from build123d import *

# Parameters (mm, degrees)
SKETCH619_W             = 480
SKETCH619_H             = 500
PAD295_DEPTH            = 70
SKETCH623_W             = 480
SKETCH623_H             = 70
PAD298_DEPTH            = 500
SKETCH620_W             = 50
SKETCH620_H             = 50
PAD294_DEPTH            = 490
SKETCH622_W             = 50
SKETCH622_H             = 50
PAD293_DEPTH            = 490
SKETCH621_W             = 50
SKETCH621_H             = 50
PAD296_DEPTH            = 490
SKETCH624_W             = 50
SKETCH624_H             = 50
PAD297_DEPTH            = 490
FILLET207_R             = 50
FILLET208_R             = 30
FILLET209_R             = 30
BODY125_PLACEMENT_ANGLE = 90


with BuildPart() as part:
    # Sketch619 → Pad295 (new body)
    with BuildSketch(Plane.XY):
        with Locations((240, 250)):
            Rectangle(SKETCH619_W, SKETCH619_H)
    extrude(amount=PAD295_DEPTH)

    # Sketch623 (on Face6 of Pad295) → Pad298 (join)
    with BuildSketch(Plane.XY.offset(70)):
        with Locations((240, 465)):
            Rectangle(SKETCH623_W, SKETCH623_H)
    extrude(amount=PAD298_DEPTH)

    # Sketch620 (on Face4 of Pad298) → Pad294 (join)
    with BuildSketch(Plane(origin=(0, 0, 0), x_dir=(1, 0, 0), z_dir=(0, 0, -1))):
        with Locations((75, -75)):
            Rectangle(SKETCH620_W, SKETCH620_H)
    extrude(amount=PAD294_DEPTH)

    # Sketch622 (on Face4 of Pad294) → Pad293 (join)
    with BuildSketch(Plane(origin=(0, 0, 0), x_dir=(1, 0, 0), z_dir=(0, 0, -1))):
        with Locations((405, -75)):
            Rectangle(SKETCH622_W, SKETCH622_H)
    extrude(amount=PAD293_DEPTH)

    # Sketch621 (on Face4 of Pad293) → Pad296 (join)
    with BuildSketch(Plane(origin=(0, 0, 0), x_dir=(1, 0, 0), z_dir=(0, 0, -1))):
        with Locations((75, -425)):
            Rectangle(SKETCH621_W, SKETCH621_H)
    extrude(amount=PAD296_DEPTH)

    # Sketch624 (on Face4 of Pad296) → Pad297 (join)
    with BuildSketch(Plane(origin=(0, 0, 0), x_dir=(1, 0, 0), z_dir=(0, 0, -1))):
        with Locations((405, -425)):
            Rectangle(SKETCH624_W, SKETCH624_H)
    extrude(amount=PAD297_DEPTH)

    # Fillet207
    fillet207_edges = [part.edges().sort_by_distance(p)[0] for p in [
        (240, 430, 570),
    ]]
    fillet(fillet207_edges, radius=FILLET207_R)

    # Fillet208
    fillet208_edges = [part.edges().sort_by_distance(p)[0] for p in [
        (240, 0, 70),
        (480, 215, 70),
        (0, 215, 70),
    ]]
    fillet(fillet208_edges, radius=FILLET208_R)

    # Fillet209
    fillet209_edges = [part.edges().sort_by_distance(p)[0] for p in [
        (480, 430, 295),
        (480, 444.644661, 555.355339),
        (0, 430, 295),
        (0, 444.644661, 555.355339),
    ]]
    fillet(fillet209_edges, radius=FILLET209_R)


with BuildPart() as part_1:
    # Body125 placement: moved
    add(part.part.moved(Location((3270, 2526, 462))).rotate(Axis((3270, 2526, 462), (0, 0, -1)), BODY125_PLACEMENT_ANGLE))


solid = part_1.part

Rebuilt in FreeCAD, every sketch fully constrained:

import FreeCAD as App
import Part
import Sketcher

V = App.Vector


def edges_at(feature, points):
    """Names of the edges that pass closest to the given points."""
    edges = feature.Shape.Edges
    near = lambda p: min(range(len(edges)), key=lambda i: edges[i].distToShape(Part.Vertex(*p))[0])
    return sorted({f"Edge{near(p) + 1}" for p in points})

doc = App.newDocument("Part")
params = doc.addObject("Spreadsheet::Sheet", "Params")
for row, (alias, value) in enumerate([
    ("sketch1_width", "480 mm"),
    ("sketch1_height", "500 mm"),
    ("pad1_length", "70 mm"),
    ("sketch2_width", "480 mm"),
    ("sketch2_height", "70 mm"),
    ("pad2_length", "500 mm"),
    ("sketch3_width", "50 mm"),
    ("pad3_length", "490 mm"),
    ("sketch4_width", "50 mm"),
    ("pad4_length", "490 mm"),
    ("sketch5_width", "50 mm"),
    ("pad5_length", "490 mm"),
    ("sketch6_width", "50 mm"),
    ("pad6_length", "490 mm"),
    ("fillet_radius", "50 mm"),
    ("fillet2_radius", "30 mm"),
    ("fillet3_radius", "30 mm"),
], start=1):
    params.set(f"A{row}", alias)
    params.set(f"B{row}", "=" + value)
    params.setAlias(f"B{row}", alias)

body = doc.addObject("PartDesign::Body", "Body")

sketch1 = body.newObject("Sketcher::SketchObject", "Sketch")
sketch1.AttachmentSupport = (doc.getObject("XY_Plane"), [""])
sketch1.MapMode = "FlatFace"
sketch1.addGeometry(Part.LineSegment(V(0, 500, 0), V(0, 0, 0)), False)
sketch1.addGeometry(Part.LineSegment(V(0, 0, 0), V(480, 0, 0)), False)
sketch1.addGeometry(Part.LineSegment(V(480, 0, 0), V(480, 500, 0)), False)
sketch1.addGeometry(Part.LineSegment(V(480, 500, 0), V(0, 500, 0)), False)
sketch1.addConstraint(Sketcher.Constraint("Coincident", 0, 2, 1, 1))
sketch1.addConstraint(Sketcher.Constraint("Coincident", 1, 2, 2, 1))
sketch1.addConstraint(Sketcher.Constraint("Coincident", 2, 2, 3, 1))
sketch1.addConstraint(Sketcher.Constraint("Coincident", 3, 2, 0, 1))
sketch1.addConstraint(Sketcher.Constraint("Vertical", 0))
sketch1.addConstraint(Sketcher.Constraint("Horizontal", 1))
sketch1.addConstraint(Sketcher.Constraint("Vertical", 2))
sketch1.addConstraint(Sketcher.Constraint("Horizontal", 3))
sketch1.addConstraint(Sketcher.Constraint("Coincident", 0, 2, -1, 1))
sketch1.addConstraint(Sketcher.Constraint("DistanceX", 1, 1, 1, 2, 480.0))
sketch1.addConstraint(Sketcher.Constraint("DistanceY", 0, 2, 0, 1, 500.0))
sketch1.setExpression("Constraints[9]", "Params.sketch1_width")
sketch1.setExpression("Constraints[10]", "Params.sketch1_height")
pad1 = body.newObject("PartDesign::Pad", "Pad")
pad1.Profile = sketch1
pad1.setExpression("Length", "Params.pad1_length")

sketch2 = body.newObject("Sketcher::SketchObject", "Sketch001")
sketch2.AttachmentSupport = (doc.getObject("XY_Plane"), [""])
sketch2.MapMode = "FlatFace"
sketch2.AttachmentOffset = App.Placement(V(0, 0, 70), App.Rotation())
sketch2.addGeometry(Part.LineSegment(V(0, 500, 0), V(0, 430, 0)), False)
sketch2.addGeometry(Part.LineSegment(V(0, 430, 0), V(480, 430, 0)), False)
sketch2.addGeometry(Part.LineSegment(V(480, 430, 0), V(480, 500, 0)), False)
sketch2.addGeometry(Part.LineSegment(V(480, 500, 0), V(0, 500, 0)), False)
sketch2.addConstraint(Sketcher.Constraint("Coincident", 0, 2, 1, 1))
sketch2.addConstraint(Sketcher.Constraint("Coincident", 1, 2, 2, 1))
sketch2.addConstraint(Sketcher.Constraint("Coincident", 2, 2, 3, 1))
sketch2.addConstraint(Sketcher.Constraint("Coincident", 3, 2, 0, 1))
sketch2.addConstraint(Sketcher.Constraint("Vertical", 0))
sketch2.addConstraint(Sketcher.Constraint("Horizontal", 1))
sketch2.addConstraint(Sketcher.Constraint("Vertical", 2))
sketch2.addConstraint(Sketcher.Constraint("Horizontal", 3))
sketch2.addConstraint(Sketcher.Constraint("PointOnObject", 0, 2, -2))
sketch2.addConstraint(Sketcher.Constraint("DistanceX", 1, 1, 1, 2, 480.0))
sketch2.addConstraint(Sketcher.Constraint("DistanceY", 0, 2, 0, 1, 70.0))
sketch2.addConstraint(Sketcher.Constraint("DistanceY", -1, 1, 0, 2, 430.0))
sketch2.setExpression("Constraints[9]", "Params.sketch2_width")
sketch2.setExpression("Constraints[10]", "Params.sketch2_height")
pad2 = body.newObject("PartDesign::Pad", "Pad001")
pad2.Profile = sketch2
pad2.setExpression("Length", "Params.pad2_length")

sketch3 = body.newObject("Sketcher::SketchObject", "Sketch002")
sketch3.AttachmentSupport = (doc.getObject("XY_Plane"), [""])
sketch3.MapMode = "FlatFace"
sketch3.addGeometry(Part.LineSegment(V(50, 50, 0), V(50, 100, 0)), False)
sketch3.addGeometry(Part.LineSegment(V(50, 100, 0), V(100, 100, 0)), False)
sketch3.addGeometry(Part.LineSegment(V(100, 100, 0), V(100, 50, 0)), False)
sketch3.addGeometry(Part.LineSegment(V(100, 50, 0), V(50, 50, 0)), False)
sketch3.addConstraint(Sketcher.Constraint("Coincident", 0, 2, 1, 1))
sketch3.addConstraint(Sketcher.Constraint("Coincident", 1, 2, 2, 1))
sketch3.addConstraint(Sketcher.Constraint("Coincident", 2, 2, 3, 1))
sketch3.addConstraint(Sketcher.Constraint("Coincident", 3, 2, 0, 1))
sketch3.addConstraint(Sketcher.Constraint("Vertical", 0))
sketch3.addConstraint(Sketcher.Constraint("Horizontal", 1))
sketch3.addConstraint(Sketcher.Constraint("Vertical", 2))
sketch3.addConstraint(Sketcher.Constraint("Horizontal", 3))
sketch3.addConstraint(Sketcher.Constraint("Equal", 3, 0))
sketch3.addConstraint(Sketcher.Constraint("DistanceX", 1, 1, 1, 2, 50.0))
sketch3.addConstraint(Sketcher.Constraint("DistanceX", -1, 1, 0, 2, 50.0))
sketch3.addConstraint(Sketcher.Constraint("DistanceY", -1, 1, 0, 2, 100.0))
sketch3.setExpression("Constraints[9]", "Params.sketch3_width")
pad3 = body.newObject("PartDesign::Pad", "Pad002")
pad3.Profile = sketch3
pad3.setExpression("Length", "Params.pad3_length")
pad3.Reversed = True

sketch4 = body.newObject("Sketcher::SketchObject", "Sketch003")
sketch4.AttachmentSupport = (doc.getObject("XY_Plane"), [""])
sketch4.MapMode = "FlatFace"
sketch4.addGeometry(Part.LineSegment(V(380, 50, 0), V(380, 100, 0)), False)
sketch4.addGeometry(Part.LineSegment(V(380, 100, 0), V(430, 100, 0)), False)
sketch4.addGeometry(Part.LineSegment(V(430, 100, 0), V(430, 50, 0)), False)
sketch4.addGeometry(Part.LineSegment(V(430, 50, 0), V(380, 50, 0)), False)
sketch4.addConstraint(Sketcher.Constraint("Coincident", 0, 2, 1, 1))
sketch4.addConstraint(Sketcher.Constraint("Coincident", 1, 2, 2, 1))
sketch4.addConstraint(Sketcher.Constraint("Coincident", 2, 2, 3, 1))
sketch4.addConstraint(Sketcher.Constraint("Coincident", 3, 2, 0, 1))
sketch4.addConstraint(Sketcher.Constraint("Vertical", 0))
sketch4.addConstraint(Sketcher.Constraint("Horizontal", 1))
sketch4.addConstraint(Sketcher.Constraint("Vertical", 2))
sketch4.addConstraint(Sketcher.Constraint("Horizontal", 3))
sketch4.addConstraint(Sketcher.Constraint("Equal", 3, 0))
sketch4.addConstraint(Sketcher.Constraint("DistanceX", 1, 1, 1, 2, 50.0))
sketch4.addConstraint(Sketcher.Constraint("DistanceX", -1, 1, 0, 2, 380.0))
sketch4.addConstraint(Sketcher.Constraint("DistanceY", -1, 1, 0, 2, 100.0))
sketch4.setExpression("Constraints[9]", "Params.sketch4_width")
pad4 = body.newObject("PartDesign::Pad", "Pad003")
pad4.Profile = sketch4
pad4.setExpression("Length", "Params.pad4_length")
pad4.Reversed = True

sketch5 = body.newObject("Sketcher::SketchObject", "Sketch004")
sketch5.AttachmentSupport = (doc.getObject("XY_Plane"), [""])
sketch5.MapMode = "FlatFace"
sketch5.addGeometry(Part.LineSegment(V(50, 400, 0), V(50, 450, 0)), False)
sketch5.addGeometry(Part.LineSegment(V(50, 450, 0), V(100, 450, 0)), False)
sketch5.addGeometry(Part.LineSegment(V(100, 450, 0), V(100, 400, 0)), False)
sketch5.addGeometry(Part.LineSegment(V(100, 400, 0), V(50, 400, 0)), False)
sketch5.addConstraint(Sketcher.Constraint("Coincident", 0, 2, 1, 1))
sketch5.addConstraint(Sketcher.Constraint("Coincident", 1, 2, 2, 1))
sketch5.addConstraint(Sketcher.Constraint("Coincident", 2, 2, 3, 1))
sketch5.addConstraint(Sketcher.Constraint("Coincident", 3, 2, 0, 1))
sketch5.addConstraint(Sketcher.Constraint("Vertical", 0))
sketch5.addConstraint(Sketcher.Constraint("Horizontal", 1))
sketch5.addConstraint(Sketcher.Constraint("Vertical", 2))
sketch5.addConstraint(Sketcher.Constraint("Horizontal", 3))
sketch5.addConstraint(Sketcher.Constraint("Equal", 3, 0))
sketch5.addConstraint(Sketcher.Constraint("DistanceX", 1, 1, 1, 2, 50.0))
sketch5.addConstraint(Sketcher.Constraint("DistanceX", -1, 1, 0, 2, 50.0))
sketch5.addConstraint(Sketcher.Constraint("DistanceY", -1, 1, 0, 2, 450.0))
sketch5.setExpression("Constraints[9]", "Params.sketch5_width")
pad5 = body.newObject("PartDesign::Pad", "Pad004")
pad5.Profile = sketch5
pad5.setExpression("Length", "Params.pad5_length")
pad5.Reversed = True

sketch6 = body.newObject("Sketcher::SketchObject", "Sketch005")
sketch6.AttachmentSupport = (doc.getObject("XY_Plane"), [""])
sketch6.MapMode = "FlatFace"
sketch6.addGeometry(Part.LineSegment(V(380, 400, 0), V(380, 450, 0)), False)
sketch6.addGeometry(Part.LineSegment(V(380, 450, 0), V(430, 450, 0)), False)
sketch6.addGeometry(Part.LineSegment(V(430, 450, 0), V(430, 400, 0)), False)
sketch6.addGeometry(Part.LineSegment(V(430, 400, 0), V(380, 400, 0)), False)
sketch6.addConstraint(Sketcher.Constraint("Coincident", 0, 2, 1, 1))
sketch6.addConstraint(Sketcher.Constraint("Coincident", 1, 2, 2, 1))
sketch6.addConstraint(Sketcher.Constraint("Coincident", 2, 2, 3, 1))
sketch6.addConstraint(Sketcher.Constraint("Coincident", 3, 2, 0, 1))
sketch6.addConstraint(Sketcher.Constraint("Vertical", 0))
sketch6.addConstraint(Sketcher.Constraint("Horizontal", 1))
sketch6.addConstraint(Sketcher.Constraint("Vertical", 2))
sketch6.addConstraint(Sketcher.Constraint("Horizontal", 3))
sketch6.addConstraint(Sketcher.Constraint("Equal", 3, 0))
sketch6.addConstraint(Sketcher.Constraint("DistanceX", 1, 1, 1, 2, 50.0))
sketch6.addConstraint(Sketcher.Constraint("DistanceX", -1, 1, 0, 2, 380.0))
sketch6.addConstraint(Sketcher.Constraint("DistanceY", -1, 1, 0, 2, 450.0))
sketch6.setExpression("Constraints[9]", "Params.sketch6_width")
pad6 = body.newObject("PartDesign::Pad", "Pad005")
pad6.Profile = sketch6
pad6.setExpression("Length", "Params.pad6_length")
pad6.Reversed = True
doc.recompute()

fillet = body.newObject("PartDesign::Fillet", "Fillet")
fillet.Base = (pad6, edges_at(pad6, [(240, 430, 570)]))
fillet.setExpression("Radius", "Params.fillet_radius")
doc.recompute()

fillet2 = body.newObject("PartDesign::Fillet", "Fillet001")
fillet2.Base = (fillet, edges_at(fillet, [(240, 0, 70), (480, 215, 70), (0, 215, 70)]))
fillet2.setExpression("Radius", "Params.fillet2_radius")
doc.recompute()

fillet3 = body.newObject("PartDesign::Fillet", "Fillet002")
fillet3.Base = (fillet2, edges_at(fillet2, [
    (480, 430, 280),
    (480, 444.645, 555.355),
    (0, 430, 280),
    (0, 444.645, 555.355),
]))
fillet3.setExpression("Radius", "Params.fillet3_radius")
body2 = doc.addObject("PartDesign::Body", "Body001")
doc.recompute()

body.Placement = App.Placement(V(3270, 2526, 462), App.Rotation(V(0, 0, -1), 90))
boolean = body2.newObject("PartDesign::Boolean", "Boolean")
boolean.Type = "Fuse"
boolean.addObjects([body])

doc.recompute()
